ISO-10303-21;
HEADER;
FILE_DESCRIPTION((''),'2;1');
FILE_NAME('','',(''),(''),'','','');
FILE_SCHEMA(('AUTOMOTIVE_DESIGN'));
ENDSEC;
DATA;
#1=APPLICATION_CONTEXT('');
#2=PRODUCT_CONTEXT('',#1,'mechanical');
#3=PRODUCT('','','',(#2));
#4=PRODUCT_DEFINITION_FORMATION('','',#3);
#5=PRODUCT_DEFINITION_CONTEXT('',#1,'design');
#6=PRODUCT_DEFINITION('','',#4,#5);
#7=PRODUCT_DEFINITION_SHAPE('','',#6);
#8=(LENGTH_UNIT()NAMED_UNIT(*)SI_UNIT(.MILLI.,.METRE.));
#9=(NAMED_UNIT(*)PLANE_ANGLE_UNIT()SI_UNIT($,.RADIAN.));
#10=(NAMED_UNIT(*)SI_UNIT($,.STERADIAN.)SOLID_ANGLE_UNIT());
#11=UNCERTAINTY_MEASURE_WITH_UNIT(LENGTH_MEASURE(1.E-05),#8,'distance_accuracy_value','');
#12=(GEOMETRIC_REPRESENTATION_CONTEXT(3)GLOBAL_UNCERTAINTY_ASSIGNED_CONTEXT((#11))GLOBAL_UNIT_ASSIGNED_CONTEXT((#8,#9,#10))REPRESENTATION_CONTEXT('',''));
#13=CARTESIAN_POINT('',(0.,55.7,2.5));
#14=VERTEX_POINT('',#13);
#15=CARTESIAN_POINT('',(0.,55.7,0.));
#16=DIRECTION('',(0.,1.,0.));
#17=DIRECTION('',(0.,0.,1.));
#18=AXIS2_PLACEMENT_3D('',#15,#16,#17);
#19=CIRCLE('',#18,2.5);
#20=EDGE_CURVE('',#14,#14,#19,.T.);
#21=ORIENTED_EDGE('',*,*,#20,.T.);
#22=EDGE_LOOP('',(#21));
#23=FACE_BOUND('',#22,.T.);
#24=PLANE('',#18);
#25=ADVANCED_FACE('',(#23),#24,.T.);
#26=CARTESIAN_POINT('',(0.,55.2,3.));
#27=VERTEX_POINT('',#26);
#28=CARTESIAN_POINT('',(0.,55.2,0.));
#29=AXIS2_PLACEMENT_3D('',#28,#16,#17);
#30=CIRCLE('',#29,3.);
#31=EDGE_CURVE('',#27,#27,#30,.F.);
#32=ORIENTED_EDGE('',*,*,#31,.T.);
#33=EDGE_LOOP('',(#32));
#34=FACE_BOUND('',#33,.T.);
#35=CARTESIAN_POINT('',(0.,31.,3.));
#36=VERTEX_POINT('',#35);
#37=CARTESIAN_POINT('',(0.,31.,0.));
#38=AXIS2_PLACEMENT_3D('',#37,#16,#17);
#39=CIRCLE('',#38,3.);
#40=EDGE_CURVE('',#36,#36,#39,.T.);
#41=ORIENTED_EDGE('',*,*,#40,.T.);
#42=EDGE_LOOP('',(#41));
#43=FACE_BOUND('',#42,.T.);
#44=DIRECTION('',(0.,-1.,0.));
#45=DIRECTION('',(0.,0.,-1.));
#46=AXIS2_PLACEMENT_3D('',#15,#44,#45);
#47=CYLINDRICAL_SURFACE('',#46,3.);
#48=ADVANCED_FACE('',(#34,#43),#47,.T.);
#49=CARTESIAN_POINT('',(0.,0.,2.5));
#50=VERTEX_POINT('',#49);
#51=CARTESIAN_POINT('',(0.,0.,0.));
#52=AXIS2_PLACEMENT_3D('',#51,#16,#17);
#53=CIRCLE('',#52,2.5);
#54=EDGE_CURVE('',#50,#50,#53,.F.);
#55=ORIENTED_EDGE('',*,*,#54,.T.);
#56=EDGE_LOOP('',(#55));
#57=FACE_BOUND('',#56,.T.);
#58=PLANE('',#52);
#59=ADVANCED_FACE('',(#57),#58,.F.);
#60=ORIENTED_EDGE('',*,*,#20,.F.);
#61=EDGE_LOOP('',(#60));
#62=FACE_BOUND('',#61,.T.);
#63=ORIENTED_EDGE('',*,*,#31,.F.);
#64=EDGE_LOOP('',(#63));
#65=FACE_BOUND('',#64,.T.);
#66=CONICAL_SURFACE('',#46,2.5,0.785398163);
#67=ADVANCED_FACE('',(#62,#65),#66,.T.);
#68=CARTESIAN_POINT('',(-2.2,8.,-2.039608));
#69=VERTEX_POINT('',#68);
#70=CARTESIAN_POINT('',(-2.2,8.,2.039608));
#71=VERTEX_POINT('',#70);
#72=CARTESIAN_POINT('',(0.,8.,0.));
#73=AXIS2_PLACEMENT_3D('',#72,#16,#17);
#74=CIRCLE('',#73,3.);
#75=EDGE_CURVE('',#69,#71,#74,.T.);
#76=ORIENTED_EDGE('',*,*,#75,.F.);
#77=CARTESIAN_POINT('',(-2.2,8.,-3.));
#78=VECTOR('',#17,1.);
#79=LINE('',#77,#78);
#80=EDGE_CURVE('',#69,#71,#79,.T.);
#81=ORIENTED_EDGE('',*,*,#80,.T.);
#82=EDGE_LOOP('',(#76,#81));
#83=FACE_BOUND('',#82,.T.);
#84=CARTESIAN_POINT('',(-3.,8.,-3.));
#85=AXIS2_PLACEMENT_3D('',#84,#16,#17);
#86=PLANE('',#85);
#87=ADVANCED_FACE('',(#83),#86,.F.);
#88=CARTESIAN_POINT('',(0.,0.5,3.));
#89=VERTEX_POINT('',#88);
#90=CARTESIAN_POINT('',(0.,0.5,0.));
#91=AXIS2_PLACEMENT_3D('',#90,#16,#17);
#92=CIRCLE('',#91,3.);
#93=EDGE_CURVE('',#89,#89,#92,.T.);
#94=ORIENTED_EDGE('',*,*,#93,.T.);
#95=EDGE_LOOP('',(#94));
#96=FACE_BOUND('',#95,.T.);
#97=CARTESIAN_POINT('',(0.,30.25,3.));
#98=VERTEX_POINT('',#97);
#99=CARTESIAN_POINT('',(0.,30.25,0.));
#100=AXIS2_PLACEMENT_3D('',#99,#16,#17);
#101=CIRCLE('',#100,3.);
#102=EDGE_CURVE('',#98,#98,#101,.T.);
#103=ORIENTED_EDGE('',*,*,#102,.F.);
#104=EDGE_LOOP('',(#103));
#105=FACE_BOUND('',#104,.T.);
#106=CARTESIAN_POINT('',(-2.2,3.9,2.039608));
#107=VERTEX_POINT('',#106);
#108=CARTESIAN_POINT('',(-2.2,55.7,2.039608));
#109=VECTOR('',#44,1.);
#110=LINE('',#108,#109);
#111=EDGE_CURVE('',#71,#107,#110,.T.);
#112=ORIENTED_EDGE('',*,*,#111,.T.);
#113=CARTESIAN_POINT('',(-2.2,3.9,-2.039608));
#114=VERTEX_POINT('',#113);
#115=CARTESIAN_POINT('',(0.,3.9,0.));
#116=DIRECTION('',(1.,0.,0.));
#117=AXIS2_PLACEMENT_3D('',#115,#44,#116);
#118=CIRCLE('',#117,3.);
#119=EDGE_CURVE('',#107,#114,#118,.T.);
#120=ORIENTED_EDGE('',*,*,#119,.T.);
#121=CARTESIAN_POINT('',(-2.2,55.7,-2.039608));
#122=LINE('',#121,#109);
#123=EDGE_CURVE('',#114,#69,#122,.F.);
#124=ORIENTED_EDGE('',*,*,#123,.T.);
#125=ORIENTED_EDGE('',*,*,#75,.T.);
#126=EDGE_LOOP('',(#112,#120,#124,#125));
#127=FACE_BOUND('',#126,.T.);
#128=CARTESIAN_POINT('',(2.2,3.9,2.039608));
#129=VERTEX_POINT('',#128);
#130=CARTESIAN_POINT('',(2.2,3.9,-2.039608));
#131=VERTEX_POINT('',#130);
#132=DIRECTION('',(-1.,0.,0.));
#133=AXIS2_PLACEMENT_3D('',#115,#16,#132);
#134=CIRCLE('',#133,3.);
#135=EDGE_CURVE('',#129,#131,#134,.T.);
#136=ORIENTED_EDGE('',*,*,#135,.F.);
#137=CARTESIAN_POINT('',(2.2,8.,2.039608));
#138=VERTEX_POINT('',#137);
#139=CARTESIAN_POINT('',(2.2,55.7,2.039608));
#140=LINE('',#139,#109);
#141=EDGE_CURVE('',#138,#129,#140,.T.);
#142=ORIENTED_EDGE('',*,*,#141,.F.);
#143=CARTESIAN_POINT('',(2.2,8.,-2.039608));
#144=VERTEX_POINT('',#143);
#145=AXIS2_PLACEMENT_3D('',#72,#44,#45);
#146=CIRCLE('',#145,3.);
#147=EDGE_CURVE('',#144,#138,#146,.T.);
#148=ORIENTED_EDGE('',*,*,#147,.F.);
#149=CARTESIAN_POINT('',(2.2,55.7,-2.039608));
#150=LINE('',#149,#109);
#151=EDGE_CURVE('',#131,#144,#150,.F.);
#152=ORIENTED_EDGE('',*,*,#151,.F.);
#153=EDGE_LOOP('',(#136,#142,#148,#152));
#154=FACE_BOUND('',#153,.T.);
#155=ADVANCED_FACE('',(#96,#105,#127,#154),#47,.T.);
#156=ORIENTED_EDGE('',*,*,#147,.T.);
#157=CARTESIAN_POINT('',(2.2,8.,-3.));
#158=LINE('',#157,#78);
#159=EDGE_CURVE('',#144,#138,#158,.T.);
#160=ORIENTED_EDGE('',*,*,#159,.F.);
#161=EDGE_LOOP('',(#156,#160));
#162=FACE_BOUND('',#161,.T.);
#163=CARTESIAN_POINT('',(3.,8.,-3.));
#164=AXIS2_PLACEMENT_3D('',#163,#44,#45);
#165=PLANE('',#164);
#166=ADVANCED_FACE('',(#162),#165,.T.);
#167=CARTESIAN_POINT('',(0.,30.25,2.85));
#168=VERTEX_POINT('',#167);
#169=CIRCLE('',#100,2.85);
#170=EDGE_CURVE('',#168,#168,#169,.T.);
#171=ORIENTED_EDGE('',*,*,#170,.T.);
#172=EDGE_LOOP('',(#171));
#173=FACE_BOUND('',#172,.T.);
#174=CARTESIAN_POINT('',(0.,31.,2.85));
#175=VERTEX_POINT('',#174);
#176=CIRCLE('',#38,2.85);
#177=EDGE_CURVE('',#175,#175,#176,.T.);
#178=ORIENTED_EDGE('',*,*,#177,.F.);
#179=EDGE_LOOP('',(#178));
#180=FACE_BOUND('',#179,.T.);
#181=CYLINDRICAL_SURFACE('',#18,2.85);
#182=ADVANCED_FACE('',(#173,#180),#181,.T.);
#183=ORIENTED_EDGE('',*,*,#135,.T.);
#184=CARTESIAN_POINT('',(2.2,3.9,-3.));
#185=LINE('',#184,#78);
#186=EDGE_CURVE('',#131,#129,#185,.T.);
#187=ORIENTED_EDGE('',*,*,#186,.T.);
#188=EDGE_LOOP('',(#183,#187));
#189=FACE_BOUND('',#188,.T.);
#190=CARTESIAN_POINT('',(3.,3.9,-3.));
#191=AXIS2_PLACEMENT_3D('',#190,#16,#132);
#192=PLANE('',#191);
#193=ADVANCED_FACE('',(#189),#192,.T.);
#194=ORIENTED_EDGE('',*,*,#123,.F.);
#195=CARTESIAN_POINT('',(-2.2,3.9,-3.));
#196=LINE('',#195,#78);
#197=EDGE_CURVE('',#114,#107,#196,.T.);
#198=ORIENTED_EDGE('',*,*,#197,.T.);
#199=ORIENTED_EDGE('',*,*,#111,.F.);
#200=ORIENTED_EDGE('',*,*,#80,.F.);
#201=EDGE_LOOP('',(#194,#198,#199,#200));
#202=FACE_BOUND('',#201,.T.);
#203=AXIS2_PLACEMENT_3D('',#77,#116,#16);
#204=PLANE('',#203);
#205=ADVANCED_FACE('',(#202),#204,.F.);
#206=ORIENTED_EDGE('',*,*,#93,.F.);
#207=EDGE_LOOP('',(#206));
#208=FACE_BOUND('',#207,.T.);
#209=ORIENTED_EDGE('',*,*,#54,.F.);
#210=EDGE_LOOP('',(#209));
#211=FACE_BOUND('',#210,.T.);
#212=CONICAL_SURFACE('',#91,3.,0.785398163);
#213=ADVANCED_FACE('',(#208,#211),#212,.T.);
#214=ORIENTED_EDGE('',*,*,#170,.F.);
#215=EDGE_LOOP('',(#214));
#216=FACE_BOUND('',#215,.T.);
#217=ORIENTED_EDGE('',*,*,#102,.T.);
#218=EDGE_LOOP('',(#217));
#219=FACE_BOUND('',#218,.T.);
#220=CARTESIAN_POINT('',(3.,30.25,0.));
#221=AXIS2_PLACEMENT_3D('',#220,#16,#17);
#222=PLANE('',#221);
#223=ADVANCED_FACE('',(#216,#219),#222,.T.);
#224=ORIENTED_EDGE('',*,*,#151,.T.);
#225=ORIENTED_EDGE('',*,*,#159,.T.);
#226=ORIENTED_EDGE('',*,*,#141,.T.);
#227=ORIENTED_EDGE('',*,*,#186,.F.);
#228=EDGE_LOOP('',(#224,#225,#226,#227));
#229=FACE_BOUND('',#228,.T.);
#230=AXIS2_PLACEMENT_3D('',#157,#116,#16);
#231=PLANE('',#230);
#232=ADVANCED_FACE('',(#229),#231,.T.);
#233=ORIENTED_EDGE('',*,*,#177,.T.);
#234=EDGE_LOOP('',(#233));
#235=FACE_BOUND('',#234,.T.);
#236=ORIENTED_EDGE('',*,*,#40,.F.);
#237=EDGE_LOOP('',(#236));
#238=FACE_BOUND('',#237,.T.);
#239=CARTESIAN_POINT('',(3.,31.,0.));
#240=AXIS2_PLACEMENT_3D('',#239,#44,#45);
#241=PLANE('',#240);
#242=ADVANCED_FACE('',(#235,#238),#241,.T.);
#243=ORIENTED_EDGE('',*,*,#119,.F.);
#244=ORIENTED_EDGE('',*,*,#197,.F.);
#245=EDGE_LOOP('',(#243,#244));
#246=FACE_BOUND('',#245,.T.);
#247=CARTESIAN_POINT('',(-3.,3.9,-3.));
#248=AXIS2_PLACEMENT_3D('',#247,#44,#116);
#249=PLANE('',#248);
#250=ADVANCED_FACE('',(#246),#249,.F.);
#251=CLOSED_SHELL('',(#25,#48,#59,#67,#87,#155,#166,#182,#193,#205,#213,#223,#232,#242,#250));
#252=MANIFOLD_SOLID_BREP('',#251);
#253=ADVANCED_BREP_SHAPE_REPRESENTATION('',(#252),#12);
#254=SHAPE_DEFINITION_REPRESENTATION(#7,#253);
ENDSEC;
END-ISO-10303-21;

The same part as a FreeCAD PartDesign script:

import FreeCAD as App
import Part
import Sketcher
Q = App.Units.Quantity


def edges_at(feature, points):
    """Names of the edges that pass closest to the given points."""
    edges = feature.Shape.Edges
    near = lambda p: min(range(len(edges)), key=lambda i: edges[i].distToShape(Part.Vertex(*p))[0])
    return sorted({f"Edge{near(p) + 1}" for p in points})


def add_polygon(sketch, points):
    """Adds a closed chain of lines whose ends are joined by coincident constraints."""
    first, n = sketch.GeometryCount, len(points)
    for a, b in zip(points, points[1:] + points[:1]):
        sketch.addGeometry(Part.LineSegment(App.Vector(*a, 0), App.Vector(*b, 0)), False)
    for i in range(n):
        sketch.addConstraint(Sketcher.Constraint("Coincident", first + i, 2, first + (i + 1) % n, 1))

doc = App.newDocument("Part")
body = doc.addObject("PartDesign::Body", "Body")

# Sketch on XZ plane
sketch1 = body.newObject("Sketcher::SketchObject", "Sketch")
sketch1.AttachmentSupport = (doc.getObject("XZ_Plane"), [""])
sketch1.MapMode = "FlatFace"
sketch1.addGeometry(Part.Circle(App.Vector(0, 0, 0), App.Vector(0, 0, 1), 3), False)
sketch1.addConstraint(Sketcher.Constraint("Coincident", 0, 3, -1, 1))
sketch1.addConstraint(Sketcher.Constraint("Diameter", 0, Q("6 mm")))
pad1 = body.newObject("PartDesign::Pad", "Pad")
pad1.Profile = sketch1
pad1.Length = 55.7
pad1.Reversed = True

# Sketch on XY plane
sketch2 = body.newObject("Sketcher::SketchObject", "Sketch001")
sketch2.AttachmentSupport = (doc.getObject("XY_Plane"), [""])
sketch2.MapMode = "FlatFace"
add_polygon(sketch2, [(-3, 8), (-3, 3.9), (-2.2, 3.9), (-2.2, 8)])  # lines 0-3
sketch2.addConstraint(Sketcher.Constraint("Vertical", 0))
sketch2.addConstraint(Sketcher.Constraint("Horizontal", 1))
sketch2.addConstraint(Sketcher.Constraint("Vertical", 2))
sketch2.addConstraint(Sketcher.Constraint("Horizontal", 3))
sketch2.addConstraint(Sketcher.Constraint("DistanceX", 1, 1, 1, 2, Q("0.8 mm")))
sketch2.addConstraint(Sketcher.Constraint("DistanceY", 0, 2, 0, 1, Q("4.1 mm")))
sketch2.addConstraint(Sketcher.Constraint("DistanceX", 0, 2, -1, 1, Q("3 mm")))
sketch2.addConstraint(Sketcher.Constraint("DistanceY", -1, 1, 2, 2, Q("8 mm")))
pocket1 = body.newObject("PartDesign::Pocket", "Pocket")
pocket1.Profile = sketch2
pocket1.Length = 8
pocket1.Midplane = True
doc.recompute()

mirrored = body.newObject("PartDesign::Mirrored", "Mirrored")
mirrored.Originals = [pocket1]
mirrored.MirrorPlane = (doc.getObject("YZ_Plane"), [""])
body.Tip = mirrored

# Sketch on XY plane
sketch3 = body.newObject("Sketcher::SketchObject", "Sketch002")
sketch3.AttachmentSupport = (doc.getObject("XY_Plane"), [""])
sketch3.MapMode = "FlatFace"
add_polygon(sketch3, [(2.85, 31), (2.85, 30.25), (3, 30.25), (3, 31)])  # lines 0-3
sketch3.addConstraint(Sketcher.Constraint("Vertical", 0))
sketch3.addConstraint(Sketcher.Constraint("Horizontal", 1))
sketch3.addConstraint(Sketcher.Constraint("Vertical", 2))
sketch3.addConstraint(Sketcher.Constraint("Horizontal", 3))
sketch3.addConstraint(Sketcher.Constraint("DistanceX", -1, 1, 1, 2, Q("3 mm")))
sketch3.addConstraint(Sketcher.Constraint("DistanceY", -1, 1, 2, 2, Q("31 mm")))
sketch3.addConstraint(Sketcher.Constraint("DistanceX", 1, 1, 1, 2, Q("0.15 mm")))
sketch3.addConstraint(Sketcher.Constraint("DistanceY", 0, 2, 0, 1, Q("0.75 mm")))
groove = body.newObject("PartDesign::Groove", "Groove")
groove.Profile = sketch3
groove.ReferenceAxis = (sketch3, ["V_Axis"])
groove.Angle = 360
doc.recompute()

chamfer = body.newObject("PartDesign::Chamfer", "Chamfer")
chamfer.Base = (groove, edges_at(groove, [(-3, 0, 0), (-3, 55.7, 0)]))
chamfer.Size = 0.5

doc.recompute()
